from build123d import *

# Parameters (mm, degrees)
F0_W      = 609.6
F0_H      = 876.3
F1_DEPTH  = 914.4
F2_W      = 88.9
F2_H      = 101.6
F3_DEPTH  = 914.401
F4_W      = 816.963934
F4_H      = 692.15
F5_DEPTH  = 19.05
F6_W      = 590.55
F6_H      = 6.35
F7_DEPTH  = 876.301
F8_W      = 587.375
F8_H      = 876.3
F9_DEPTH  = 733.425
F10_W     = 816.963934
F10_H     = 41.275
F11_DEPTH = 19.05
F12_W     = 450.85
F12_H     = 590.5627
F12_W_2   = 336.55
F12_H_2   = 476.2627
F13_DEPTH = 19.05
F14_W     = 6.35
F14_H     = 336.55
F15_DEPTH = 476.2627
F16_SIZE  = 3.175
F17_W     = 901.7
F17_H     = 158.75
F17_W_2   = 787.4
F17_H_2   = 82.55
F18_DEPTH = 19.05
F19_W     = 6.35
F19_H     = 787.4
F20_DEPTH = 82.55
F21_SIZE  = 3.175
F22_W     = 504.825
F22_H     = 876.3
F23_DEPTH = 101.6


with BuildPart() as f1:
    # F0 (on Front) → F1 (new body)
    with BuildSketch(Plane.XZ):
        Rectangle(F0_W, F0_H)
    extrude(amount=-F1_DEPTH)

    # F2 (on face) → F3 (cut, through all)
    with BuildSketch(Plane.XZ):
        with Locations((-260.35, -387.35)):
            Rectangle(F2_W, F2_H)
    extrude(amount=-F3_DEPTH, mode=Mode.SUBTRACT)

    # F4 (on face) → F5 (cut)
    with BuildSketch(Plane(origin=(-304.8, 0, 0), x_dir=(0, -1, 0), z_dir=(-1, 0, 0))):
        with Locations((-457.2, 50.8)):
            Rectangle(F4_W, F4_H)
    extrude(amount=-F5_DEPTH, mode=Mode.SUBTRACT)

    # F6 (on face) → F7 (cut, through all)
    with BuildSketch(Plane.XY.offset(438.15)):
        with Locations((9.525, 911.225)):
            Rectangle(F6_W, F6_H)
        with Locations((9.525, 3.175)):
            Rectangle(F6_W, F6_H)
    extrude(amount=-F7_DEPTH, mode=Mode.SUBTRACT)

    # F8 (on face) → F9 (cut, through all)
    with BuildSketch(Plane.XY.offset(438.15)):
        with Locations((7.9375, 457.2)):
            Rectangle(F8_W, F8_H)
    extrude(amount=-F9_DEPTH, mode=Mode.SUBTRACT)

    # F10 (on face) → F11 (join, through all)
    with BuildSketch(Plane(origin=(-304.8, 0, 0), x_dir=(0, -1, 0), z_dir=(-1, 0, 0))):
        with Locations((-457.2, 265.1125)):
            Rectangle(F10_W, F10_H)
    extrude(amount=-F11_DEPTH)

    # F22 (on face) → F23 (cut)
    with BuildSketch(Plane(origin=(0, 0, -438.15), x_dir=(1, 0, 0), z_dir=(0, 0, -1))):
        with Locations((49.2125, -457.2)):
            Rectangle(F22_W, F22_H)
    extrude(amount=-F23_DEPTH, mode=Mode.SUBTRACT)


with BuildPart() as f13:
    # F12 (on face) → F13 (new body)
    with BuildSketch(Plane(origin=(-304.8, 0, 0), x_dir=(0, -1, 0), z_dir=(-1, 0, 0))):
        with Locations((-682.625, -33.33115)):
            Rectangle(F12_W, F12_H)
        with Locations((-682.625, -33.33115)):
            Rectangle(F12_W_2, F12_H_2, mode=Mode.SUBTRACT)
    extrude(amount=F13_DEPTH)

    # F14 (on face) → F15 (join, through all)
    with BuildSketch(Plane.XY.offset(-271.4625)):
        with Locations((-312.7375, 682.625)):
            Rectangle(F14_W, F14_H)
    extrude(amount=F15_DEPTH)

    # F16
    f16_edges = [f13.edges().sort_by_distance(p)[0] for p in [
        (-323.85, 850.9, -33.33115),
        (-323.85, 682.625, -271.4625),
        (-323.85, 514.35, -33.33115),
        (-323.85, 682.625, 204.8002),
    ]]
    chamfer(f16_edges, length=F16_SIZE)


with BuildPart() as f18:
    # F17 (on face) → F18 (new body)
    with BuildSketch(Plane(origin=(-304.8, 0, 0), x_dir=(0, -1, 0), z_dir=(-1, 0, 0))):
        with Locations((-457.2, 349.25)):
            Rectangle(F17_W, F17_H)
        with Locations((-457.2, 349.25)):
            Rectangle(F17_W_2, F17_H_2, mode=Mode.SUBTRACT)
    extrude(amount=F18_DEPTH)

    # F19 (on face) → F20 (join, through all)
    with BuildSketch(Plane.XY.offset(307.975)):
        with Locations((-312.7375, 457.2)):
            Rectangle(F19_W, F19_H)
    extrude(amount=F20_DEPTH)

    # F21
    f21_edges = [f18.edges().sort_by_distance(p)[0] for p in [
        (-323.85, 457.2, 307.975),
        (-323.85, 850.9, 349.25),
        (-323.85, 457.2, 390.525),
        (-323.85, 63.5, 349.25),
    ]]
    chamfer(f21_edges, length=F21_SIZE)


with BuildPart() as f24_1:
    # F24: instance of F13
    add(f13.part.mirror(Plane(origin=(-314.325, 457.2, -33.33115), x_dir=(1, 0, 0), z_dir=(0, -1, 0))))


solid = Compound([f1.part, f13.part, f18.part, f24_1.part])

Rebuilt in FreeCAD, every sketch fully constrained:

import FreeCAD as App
import Part
import Sketcher

V = App.Vector
Q = App.Units.Quantity


def edges_at(feature, points):
    """Names of the edges that pass closest to the given points."""
    edges = feature.Shape.Edges
    near = lambda p: min(range(len(edges)), key=lambda i: edges[i].distToShape(Part.Vertex(*p))[0])
    return sorted({f"Edge{near(p) + 1}" for p in points})


def add_polygon(sketch, points):
    """Adds a closed chain of lines whose ends are joined by coincident constraints."""
    first, n = sketch.GeometryCount, len(points)
    for a, b in zip(points, points[1:] + points[:1]):
        sketch.addGeometry(Part.LineSegment(App.Vector(*a, 0), App.Vector(*b, 0)), False)
    for i in range(n):
        sketch.addConstraint(Sketcher.Constraint("Coincident", first + i, 2, first + (i + 1) % n, 1))

doc = App.newDocument("Part")
body = doc.addObject("PartDesign::Body", "Body")

sketch1 = body.newObject("Sketcher::SketchObject", "Sketch")
sketch1.AttachmentSupport = (doc.getObject("XZ_Plane"), [""])
sketch1.MapMode = "FlatFace"
add_polygon(sketch1, [(-304.8, 438.15), (-304.8, -438.15), (304.8, -438.15), (304.8, 438.15)])
sketch1.addConstraint([
    Sketcher.Constraint("Vertical", 0),
    Sketcher.Constraint("Horizontal", 1),
    Sketcher.Constraint("Vertical", 2),
    Sketcher.Constraint("Horizontal", 3),
    Sketcher.Constraint("Symmetric", 0, 2, 2, 2, -1, 1),
    Sketcher.Constraint("DistanceX", 1, 1, 1, 2, Q("24 in")),
    Sketcher.Constraint("DistanceY", 0, 2, 0, 1, Q("34.5 in")),
])
pad1 = body.newObject("PartDesign::Pad", "Pad")
pad1.Profile = sketch1
pad1.Length = Q("36 in")
pad1.Reversed = True

sketch2 = body.newObject("Sketcher::SketchObject", "Sketch001")
sketch2.AttachmentSupport = (doc.getObject("XZ_Plane"), [""])
sketch2.MapMode = "FlatFace"
add_polygon(sketch2, [(-304.8, -336.55), (-304.8, -438.15), (-215.9, -438.15), (-215.9, -336.55)])
sketch2.addConstraint([
    Sketcher.Constraint("Vertical", 0),
    Sketcher.Constraint("Horizontal", 1),
    Sketcher.Constraint("Vertical", 2),
    Sketcher.Constraint("Horizontal", 3),
    Sketcher.Constraint("DistanceY", 0, 2, 0, 1, Q("4 in")),
    Sketcher.Constraint("DistanceX", 1, 1, 1, 2, Q("3.5 in")),
    Sketcher.Constraint("DistanceX", 0, 2, -1, 1, Q("12 in")),
    Sketcher.Constraint("DistanceY", 0, 2, -1, 1, Q("17.25 in")),
])
pocket1 = body.newObject("PartDesign::Pocket", "Pocket")
pocket1.Profile = sketch2
pocket1.Type = "ThroughAll"

sketch3 = body.newObject("Sketcher::SketchObject", "Sketch002")
sketch3.AttachmentSupport = (doc.getObject("YZ_Plane"), [""])
sketch3.MapMode = "FlatFace"
sketch3.AttachmentOffset = App.Placement(V(0, 0, -12 * 25.4), App.Rotation())
add_polygon(sketch3, [(865.681967, 396.875), (865.681967, -295.275), (48.718033, -295.275), (48.718033, 396.875)])
sketch3.addConstraint([
    Sketcher.Constraint("Vertical", 0),
    Sketcher.Constraint("Horizontal", 1),
    Sketcher.Constraint("Vertical", 2),
    Sketcher.Constraint("Horizontal", 3),
    Sketcher.Constraint("DistanceY", 0, 2, 0, 1, Q("27.25 in")),
    Sketcher.Constraint("DistanceY", 0, 2, -1, 1, Q("11.625 in")),
    Sketcher.Constraint("DistanceX", 1, 2, 1, 1, 816.963934),
    Sketcher.Constraint("DistanceX", -1, 1, 0, 2, 865.681967),
])
pocket2 = body.newObject("PartDesign::Pocket", "Pocket001")
pocket2.Profile = sketch3
pocket2.Length = Q("0.75 in")
pocket2.Reversed = True

sketch4 = body.newObject("Sketcher::SketchObject", "Sketch003")
sketch4.AttachmentSupport = (doc.getObject("XY_Plane"), [""])
sketch4.MapMode = "FlatFace"
sketch4.AttachmentOffset = App.Placement(V(0, 0, 17.25 * 25.4), App.Rotation())
add_polygon(sketch4, [(-285.75, 914.4), (-285.75, 908.05), (304.8, 908.05), (304.8, 914.4)])
add_polygon(sketch4, [(-285.75, 6.35), (-285.75, 0), (304.8, 0), (304.8, 6.35)])
sketch4.addConstraint([
    Sketcher.Constraint("Vertical", 0),
    Sketcher.Constraint("Horizontal", 1),
    Sketcher.Constraint("Vertical", 2),
    Sketcher.Constraint("Horizontal", 3),
    Sketcher.Constraint("Vertical", 4),
    Sketcher.Constraint("Horizontal", 5),
    Sketcher.Constraint("Vertical", 6),
    Sketcher.Constraint("Horizontal", 7),
    Sketcher.Constraint("PointOnObject", 4, 2, -1),
    Sketcher.Constraint("Vertical", 3, 2, 4, 2),
    Sketcher.Constraint("Vertical", 2, 2, 5, 2),
    Sketcher.Constraint("Equal", 2, 4),
    Sketcher.Constraint("DistanceX", -1, 1, 1, 2, Q("12 in")),
    Sketcher.Constraint("DistanceY", -1, 1, 2, 2, Q("36 in")),
    Sketcher.Constraint("DistanceX", 1, 1, 1, 2, Q("23.25 in")),
    Sketcher.Constraint("DistanceY", 0, 2, 0, 1, Q("0.25 in")),
])
pocket3 = body.newObject("PartDesign::Pocket", "Pocket002")
pocket3.Profile = sketch4
pocket3.Type = "ThroughAll"

sketch5 = body.newObject("Sketcher::SketchObject", "Sketch004")
sketch5.AttachmentSupport = (doc.getObject("XY_Plane"), [""])
sketch5.MapMode = "FlatFace"
sketch5.AttachmentOffset = App.Placement(V(0, 0, 17.25 * 25.4), App.Rotation())
add_polygon(sketch5, [(-285.75, 895.35), (-285.75, 19.05), (301.625, 19.05), (301.625, 895.35)])
sketch5.addConstraint([
    Sketcher.Constraint("Vertical", 0),
    Sketcher.Constraint("Horizontal", 1),
    Sketcher.Constraint("Vertical", 2),
    Sketcher.Constraint("Horizontal", 3),
    Sketcher.Constraint("DistanceY", 0, 2, 0, 1, Q("34.5 in")),
    Sketcher.Constraint("DistanceX", 1, 1, 1, 2, Q("23.125 in")),
    Sketcher.Constraint("DistanceX", 0, 2, -1, 1, Q("11.25 in")),
    Sketcher.Constraint("DistanceY", -1, 1, 0, 2, Q("0.75 in")),
])
pocket4 = body.newObject("PartDesign::Pocket", "Pocket003")
pocket4.Profile = sketch5
pocket4.Length = Q("28.875 in")

sketch6 = body.newObject("Sketcher::SketchObject", "Sketch005")
sketch6.AttachmentSupport = (doc.getObject("YZ_Plane"), [""])
sketch6.MapMode = "FlatFace"
sketch6.AttachmentOffset = App.Placement(V(0, 0, -12 * 25.4), App.Rotation())
add_polygon(sketch6, [(865.681967, 285.75), (865.681967, 244.475), (48.718033, 244.475), (48.718033, 285.75)])
sketch6.addConstraint([
    Sketcher.Constraint("Vertical", 0),
    Sketcher.Constraint("Horizontal", 1),
    Sketcher.Constraint("Vertical", 2),
    Sketcher.Constraint("Horizontal", 3),
    Sketcher.Constraint("DistanceY", 0, 2, 0, 1, Q("1.625 in")),
    Sketcher.Constraint("DistanceY", -1, 1, 2, 2, Q("11.25 in")),
    Sketcher.Constraint("DistanceX", 1, 2, 1, 1, 816.963934),
    Sketcher.Constraint("DistanceX", -1, 1, 0, 2, 865.681967),
])
pad2 = body.newObject("PartDesign::Pad", "Pad001")
pad2.Profile = sketch6
pad2.Length = Q("0.75 in")

sketch7 = body.newObject("Sketcher::SketchObject", "Sketch006")
sketch7.AttachmentSupport = (doc.getObject("XY_Plane"), [""])
sketch7.MapMode = "FlatFace"
sketch7.AttachmentOffset = App.Placement(V(0, 0, -17.25 * 25.4), App.Rotation())
add_polygon(sketch7, [(-203.2, 19.05), (-203.2, 895.35), (301.625, 895.35), (301.625, 19.05)])
sketch7.addConstraint([
    Sketcher.Constraint("Vertical", 0),
    Sketcher.Constraint("Horizontal", 1),
    Sketcher.Constraint("Vertical", 2),
    Sketcher.Constraint("Horizontal", 3),
    Sketcher.Constraint("DistanceY", 0, 1, 0, 2, Q("34.5 in")),
    Sketcher.Constraint("DistanceX", 0, 2, -1, 1, Q("8 in")),
    Sketcher.Constraint("DistanceX", 1, 1, 1, 2, Q("19.875 in")),
    Sketcher.Constraint("DistanceY", -1, 1, 0, 2, Q("35.25 in")),
])
pocket5 = body.newObject("PartDesign::Pocket", "Pocket004")
pocket5.Profile = sketch7
pocket5.Length = Q("4 in")
pocket5.Reversed = True
body2 = doc.addObject("PartDesign::Body", "Body001")

sketch8 = body2.newObject("Sketcher::SketchObject", "Sketch007")
sketch8.AttachmentSupport = (doc.getObject("YZ_Plane001"), [""])
sketch8.MapMode = "FlatFace"
sketch8.AttachmentOffset = App.Placement(V(0, 0, -12 * 25.4), App.Rotation())
add_polygon(sketch8, [(908.05, 261.9502), (908.05, -328.6125), (457.2, -328.6125), (457.2, 261.9502)])
add_polygon(sketch8, [(514.35, -271.4625), (850.9, -271.4625), (850.9, 204.8002), (514.35, 204.8002)])
sketch8.addConstraint([
    Sketcher.Constraint("Vertical", 0),
    Sketcher.Constraint("Horizontal", 1),
    Sketcher.Constraint("Vertical", 2),
    Sketcher.Constraint("Horizontal", 3),
    Sketcher.Constraint("Horizontal", 4),
    Sketcher.Constraint("Vertical", 5),
    Sketcher.Constraint("Horizontal", 6),
    Sketcher.Constraint("Vertical", 7),
    Sketcher.Constraint("DistanceX", -1, 1, 1, 2, Q("18 in")),
    Sketcher.Constraint("DistanceX", 1, 2, 1, 1, Q("17.75 in")),
    Sketcher.Constraint("DistanceX", 4, 1, 4, 2, Q("13.25 in")),
    Sketcher.Constraint("DistanceX", -1, 1, 4, 2, Q("33.5 in")),
    Sketcher.Constraint("DistanceY", 0, 2, 4, 2, Q("2.25 in")),
    Sketcher.Constraint("DistanceY", 5, 2, 3, 2, Q("2.25 in")),
    Sketcher.Constraint("DistanceY", 0, 2, 0, 1, Q("23.2505 in")),
    Sketcher.Constraint("DistanceY", 0, 2, -1, 1, Q("12.9375 in")),
])
pad3 = body2.newObject("PartDesign::Pad", "Pad002")
pad3.Profile = sketch8
pad3.Length = Q("0.75 in")
pad3.Reversed = True

sketch9 = body2.newObject("Sketcher::SketchObject", "Sketch008")
sketch9.AttachmentSupport = (doc.getObject("XY_Plane001"), [""])
sketch9.MapMode = "FlatFace"
sketch9.AttachmentOffset = App.Placement(V(0, 0, -10.6875 * 25.4), App.Rotation())
add_polygon(sketch9, [(-315.9125, 850.9), (-315.9125, 514.35), (-309.5625, 514.35), (-309.5625, 850.9)])
sketch9.addConstraint([
    Sketcher.Constraint("Vertical", 0),
    Sketcher.Constraint("Horizontal", 1),
    Sketcher.Constraint("Vertical", 2),
    Sketcher.Constraint("Horizontal", 3),
    Sketcher.Constraint("DistanceX", 1, 1, 1, 2, Q("0.25 in")),
    Sketcher.Constraint("DistanceY", 0, 2, 0, 1, Q("13.25 in")),
    Sketcher.Constraint("DistanceY", -1, 1, 2, 2, Q("33.5 in")),
    Sketcher.Constraint("DistanceX", 0, 2, -1, 1, Q("12.4375 in")),
])
pad4 = body2.newObject("PartDesign::Pad", "Pad003")
pad4.Profile = sketch9
pad4.Type = "UpToLast"
doc.recompute()

chamfer = body2.newObject("PartDesign::Chamfer", "Chamfer")
chamfer.Base = (pad4, edges_at(pad4, [
    (-323.85, 850.9, -33.331),
    (-323.85, 682.625, -271.462),
    (-323.85, 514.35, -33.331),
    (-323.85, 682.625, 204.8),
]))
chamfer.Size = Q("0.125 in")
body3 = doc.addObject("PartDesign::Body", "Body002")

sketch10 = body3.newObject("Sketcher::SketchObject", "Sketch009")
sketch10.AttachmentSupport = (doc.getObject("YZ_Plane002"), [""])
sketch10.MapMode = "FlatFace"
sketch10.AttachmentOffset = App.Placement(V(0, 0, -12 * 25.4), App.Rotation())
add_polygon(sketch10, [(908.05, 428.625), (908.05, 269.875), (6.35, 269.875), (6.35, 428.625)])
add_polygon(sketch10, [(63.5, 307.975), (850.9, 307.975), (850.9, 390.525), (63.5, 390.525)])
sketch10.addConstraint([
    Sketcher.Constraint("Vertical", 0),
    Sketcher.Constraint("Horizontal", 1),
    Sketcher.Constraint("Vertical", 2),
    Sketcher.Constraint("Horizontal", 3),
    Sketcher.Constraint("Horizontal", 4),
    Sketcher.Constraint("Vertical", 5),
    Sketcher.Constraint("Horizontal", 6),
    Sketcher.Constraint("Vertical", 7),
    Sketcher.Constraint("DistanceX", 4, 1, 4, 2, Q("31 in")),
    Sketcher.Constraint("DistanceX", 1, 2, 1, 1, Q("35.5 in")),
    Sketcher.Constraint("DistanceY", 0, 2, 0, 1, Q("6.25 in")),
    Sketcher.Constraint("DistanceY", 5, 1, 5, 2, Q("3.25 in")),
    Sketcher.Constraint("DistanceX", -1, 1, 4, 2, Q("33.5 in")),
    Sketcher.Constraint("DistanceY", 0, 2, 4, 2, Q("1.5 in")),
    Sketcher.Constraint("DistanceX", -1, 1, 0, 2, Q("35.75 in")),
    Sketcher.Constraint("DistanceY", -1, 1, 0, 2, Q("10.625 in")),
])
pad5 = body3.newObject("PartDesign::Pad", "Pad004")
pad5.Profile = sketch10
pad5.Length = Q("0.75 in")
pad5.Reversed = True

sketch11 = body3.newObject("Sketcher::SketchObject", "Sketch010")
sketch11.AttachmentSupport = (doc.getObject("XY_Plane002"), [""])
sketch11.MapMode = "FlatFace"
sketch11.AttachmentOffset = App.Placement(V(0, 0, 12.125 * 25.4), App.Rotation())
add_polygon(sketch11, [(-315.9125, 850.9), (-315.9125, 63.5), (-309.5625, 63.5), (-309.5625, 850.9)])
sketch11.addConstraint([
    Sketcher.Constraint("Vertical", 0),
    Sketcher.Constraint("Horizontal", 1),
    Sketcher.Constraint("Vertical", 2),
    Sketcher.Constraint("Horizontal", 3),
    Sketcher.Constraint("DistanceY", 0, 2, 0, 1, Q("31 in")),
    Sketcher.Constraint("DistanceX", 1, 1, 1, 2, Q("0.25 in")),
    Sketcher.Constraint("DistanceY", -1, 1, 0, 2, Q("2.5 in")),
    Sketcher.Constraint("DistanceX", 0, 2, -1, 1, Q("12.4375 in")),
])
pad6 = body3.newObject("PartDesign::Pad", "Pad005")
pad6.Profile = sketch11
pad6.Type = "UpToLast"
doc.recompute()

chamfer2 = body3.newObject("PartDesign::Chamfer", "Chamfer001")
chamfer2.Base = (pad6, edges_at(pad6, [
    (-323.85, 457.2, 307.975),
    (-323.85, 850.9, 349.25),
    (-323.85, 457.2, 390.525),
    (-323.85, 63.5, 349.25),
]))
chamfer2.Size = Q("0.125 in")
body4 = doc.addObject("PartDesign::Body", "Body003")
doc.recompute()

mirroring = doc.addObject("Part::Mirroring", "Mirroring")
mirroring.Source = body2
mirroring.Base = V(-314.325, 457.2, -33.33115)
mirroring.Normal = V(0, -1, 0)
body4.BaseFeature = mirroring
doc.recompute()
mirroring.Visibility = False

doc.recompute()
